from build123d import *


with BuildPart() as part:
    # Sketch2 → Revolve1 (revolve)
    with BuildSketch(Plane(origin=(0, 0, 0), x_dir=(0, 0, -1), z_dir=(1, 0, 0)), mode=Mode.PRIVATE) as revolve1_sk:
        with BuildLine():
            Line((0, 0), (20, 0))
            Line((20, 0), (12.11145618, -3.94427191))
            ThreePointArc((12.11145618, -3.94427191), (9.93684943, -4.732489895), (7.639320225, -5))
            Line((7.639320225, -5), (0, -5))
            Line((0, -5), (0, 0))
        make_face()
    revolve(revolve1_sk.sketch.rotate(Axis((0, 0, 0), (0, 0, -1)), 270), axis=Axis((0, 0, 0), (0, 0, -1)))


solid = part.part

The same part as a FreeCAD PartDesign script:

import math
import FreeCAD as App
import Part
import Sketcher

doc = App.newDocument("Part")
body = doc.addObject("PartDesign::Body", "Body")

sketch1 = doc.addObject("Sketcher::SketchObject", "Sketch")
body.addObject(sketch1)
sketch1.AttachmentSupport = (doc.YZ_Plane, [""])
sketch1.MapMode = "FlatFace"
sketch1.addGeometry(Part.LineSegment(App.Vector(0, -20, 0), App.Vector(0, 0, 0)), False)
sketch1.addGeometry(Part.LineSegment(App.Vector(0, 0, 0), App.Vector(-5, 0, 0)), False)
sketch1.addGeometry(Part.LineSegment(App.Vector(-5, 0, 0), App.Vector(-5, -7.63932, 0)), False)
sketch1.addGeometry(Part.ArcOfCircle(Part.Circle(App.Vector(5, -7.63932, 0), App.Vector(0, 0, 1), 10), math.radians(180), math.radians(206.565051)), False)
sketch1.addGeometry(Part.LineSegment(App.Vector(-3.944272, -12.111456, 0), App.Vector(0, -20, 0)), False)
sketch1.addConstraint(Sketcher.Constraint("Coincident", 0, 2, 1, 1))
sketch1.addConstraint(Sketcher.Constraint("Coincident", 1, 2, 2, 1))
sketch1.addConstraint(Sketcher.Constraint("Tangent", 2, 2, 3, 1))
sketch1.addConstraint(Sketcher.Constraint("Tangent", 3, 2, 4, 1))
sketch1.addConstraint(Sketcher.Constraint("Coincident", 4, 2, 0, 1))
sketch1.addConstraint(Sketcher.Constraint("Vertical", 0))
sketch1.addConstraint(Sketcher.Constraint("Horizontal", 1))
sketch1.addConstraint(Sketcher.Constraint("Vertical", 2))
sketch1.addConstraint(Sketcher.Constraint("Coincident", 0, 2, -1, 1))
sketch1.addConstraint(Sketcher.Constraint("Radius", 3, 10.0))
sketch1.addConstraint(Sketcher.Constraint("DistanceX", 1, 2, 1, 1, 5.0))
sketch1.addConstraint(Sketcher.Constraint("DistanceY", 0, 1, 0, 2, 20.0))
sketch1.addConstraint(Sketcher.Constraint("DistanceY", 2, 2, 2, 1, 7.63932))
revolution = doc.addObject("PartDesign::Revolution", "Revolution")
body.addObject(revolution)
revolution.Profile = sketch1
revolution.ReferenceAxis = (sketch1, ["V_Axis"])
revolution.Angle = 360

doc.recompute()
